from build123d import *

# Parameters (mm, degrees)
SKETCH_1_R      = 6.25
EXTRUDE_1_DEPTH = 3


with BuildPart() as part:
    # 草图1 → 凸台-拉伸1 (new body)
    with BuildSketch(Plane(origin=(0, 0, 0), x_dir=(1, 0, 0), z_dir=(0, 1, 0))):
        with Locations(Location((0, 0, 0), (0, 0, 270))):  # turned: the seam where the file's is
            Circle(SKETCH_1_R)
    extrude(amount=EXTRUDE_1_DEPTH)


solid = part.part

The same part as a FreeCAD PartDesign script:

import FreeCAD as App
import Part
import Sketcher
from FreeCAD import Vector

doc = App.newDocument("Part")
body = doc.addObject("PartDesign::Body", "Body")

sketch1 = doc.addObject("Sketcher::SketchObject", "Sketch")
body.addObject(sketch1)
sketch1.AttachmentSupport = (doc.XZ_Plane, [""])
sketch1.MapMode = "FlatFace"
sketch1.addGeometry(Part.Circle(Vector(0, 0, 0), Vector(0, 0, 1), 6), False)
sketch1.addConstraint(Sketcher.Constraint("Coincident", 0, 3, -1, 1))
sketch1.addConstraint(Sketcher.Constraint("Diameter", 0, 12.5))
pad1 = doc.addObject("PartDesign::Pad", "Pad")
body.addObject(pad1)
pad1.Profile = sketch1
pad1.Length = 3
pad1.Reversed = True

doc.recompute()
